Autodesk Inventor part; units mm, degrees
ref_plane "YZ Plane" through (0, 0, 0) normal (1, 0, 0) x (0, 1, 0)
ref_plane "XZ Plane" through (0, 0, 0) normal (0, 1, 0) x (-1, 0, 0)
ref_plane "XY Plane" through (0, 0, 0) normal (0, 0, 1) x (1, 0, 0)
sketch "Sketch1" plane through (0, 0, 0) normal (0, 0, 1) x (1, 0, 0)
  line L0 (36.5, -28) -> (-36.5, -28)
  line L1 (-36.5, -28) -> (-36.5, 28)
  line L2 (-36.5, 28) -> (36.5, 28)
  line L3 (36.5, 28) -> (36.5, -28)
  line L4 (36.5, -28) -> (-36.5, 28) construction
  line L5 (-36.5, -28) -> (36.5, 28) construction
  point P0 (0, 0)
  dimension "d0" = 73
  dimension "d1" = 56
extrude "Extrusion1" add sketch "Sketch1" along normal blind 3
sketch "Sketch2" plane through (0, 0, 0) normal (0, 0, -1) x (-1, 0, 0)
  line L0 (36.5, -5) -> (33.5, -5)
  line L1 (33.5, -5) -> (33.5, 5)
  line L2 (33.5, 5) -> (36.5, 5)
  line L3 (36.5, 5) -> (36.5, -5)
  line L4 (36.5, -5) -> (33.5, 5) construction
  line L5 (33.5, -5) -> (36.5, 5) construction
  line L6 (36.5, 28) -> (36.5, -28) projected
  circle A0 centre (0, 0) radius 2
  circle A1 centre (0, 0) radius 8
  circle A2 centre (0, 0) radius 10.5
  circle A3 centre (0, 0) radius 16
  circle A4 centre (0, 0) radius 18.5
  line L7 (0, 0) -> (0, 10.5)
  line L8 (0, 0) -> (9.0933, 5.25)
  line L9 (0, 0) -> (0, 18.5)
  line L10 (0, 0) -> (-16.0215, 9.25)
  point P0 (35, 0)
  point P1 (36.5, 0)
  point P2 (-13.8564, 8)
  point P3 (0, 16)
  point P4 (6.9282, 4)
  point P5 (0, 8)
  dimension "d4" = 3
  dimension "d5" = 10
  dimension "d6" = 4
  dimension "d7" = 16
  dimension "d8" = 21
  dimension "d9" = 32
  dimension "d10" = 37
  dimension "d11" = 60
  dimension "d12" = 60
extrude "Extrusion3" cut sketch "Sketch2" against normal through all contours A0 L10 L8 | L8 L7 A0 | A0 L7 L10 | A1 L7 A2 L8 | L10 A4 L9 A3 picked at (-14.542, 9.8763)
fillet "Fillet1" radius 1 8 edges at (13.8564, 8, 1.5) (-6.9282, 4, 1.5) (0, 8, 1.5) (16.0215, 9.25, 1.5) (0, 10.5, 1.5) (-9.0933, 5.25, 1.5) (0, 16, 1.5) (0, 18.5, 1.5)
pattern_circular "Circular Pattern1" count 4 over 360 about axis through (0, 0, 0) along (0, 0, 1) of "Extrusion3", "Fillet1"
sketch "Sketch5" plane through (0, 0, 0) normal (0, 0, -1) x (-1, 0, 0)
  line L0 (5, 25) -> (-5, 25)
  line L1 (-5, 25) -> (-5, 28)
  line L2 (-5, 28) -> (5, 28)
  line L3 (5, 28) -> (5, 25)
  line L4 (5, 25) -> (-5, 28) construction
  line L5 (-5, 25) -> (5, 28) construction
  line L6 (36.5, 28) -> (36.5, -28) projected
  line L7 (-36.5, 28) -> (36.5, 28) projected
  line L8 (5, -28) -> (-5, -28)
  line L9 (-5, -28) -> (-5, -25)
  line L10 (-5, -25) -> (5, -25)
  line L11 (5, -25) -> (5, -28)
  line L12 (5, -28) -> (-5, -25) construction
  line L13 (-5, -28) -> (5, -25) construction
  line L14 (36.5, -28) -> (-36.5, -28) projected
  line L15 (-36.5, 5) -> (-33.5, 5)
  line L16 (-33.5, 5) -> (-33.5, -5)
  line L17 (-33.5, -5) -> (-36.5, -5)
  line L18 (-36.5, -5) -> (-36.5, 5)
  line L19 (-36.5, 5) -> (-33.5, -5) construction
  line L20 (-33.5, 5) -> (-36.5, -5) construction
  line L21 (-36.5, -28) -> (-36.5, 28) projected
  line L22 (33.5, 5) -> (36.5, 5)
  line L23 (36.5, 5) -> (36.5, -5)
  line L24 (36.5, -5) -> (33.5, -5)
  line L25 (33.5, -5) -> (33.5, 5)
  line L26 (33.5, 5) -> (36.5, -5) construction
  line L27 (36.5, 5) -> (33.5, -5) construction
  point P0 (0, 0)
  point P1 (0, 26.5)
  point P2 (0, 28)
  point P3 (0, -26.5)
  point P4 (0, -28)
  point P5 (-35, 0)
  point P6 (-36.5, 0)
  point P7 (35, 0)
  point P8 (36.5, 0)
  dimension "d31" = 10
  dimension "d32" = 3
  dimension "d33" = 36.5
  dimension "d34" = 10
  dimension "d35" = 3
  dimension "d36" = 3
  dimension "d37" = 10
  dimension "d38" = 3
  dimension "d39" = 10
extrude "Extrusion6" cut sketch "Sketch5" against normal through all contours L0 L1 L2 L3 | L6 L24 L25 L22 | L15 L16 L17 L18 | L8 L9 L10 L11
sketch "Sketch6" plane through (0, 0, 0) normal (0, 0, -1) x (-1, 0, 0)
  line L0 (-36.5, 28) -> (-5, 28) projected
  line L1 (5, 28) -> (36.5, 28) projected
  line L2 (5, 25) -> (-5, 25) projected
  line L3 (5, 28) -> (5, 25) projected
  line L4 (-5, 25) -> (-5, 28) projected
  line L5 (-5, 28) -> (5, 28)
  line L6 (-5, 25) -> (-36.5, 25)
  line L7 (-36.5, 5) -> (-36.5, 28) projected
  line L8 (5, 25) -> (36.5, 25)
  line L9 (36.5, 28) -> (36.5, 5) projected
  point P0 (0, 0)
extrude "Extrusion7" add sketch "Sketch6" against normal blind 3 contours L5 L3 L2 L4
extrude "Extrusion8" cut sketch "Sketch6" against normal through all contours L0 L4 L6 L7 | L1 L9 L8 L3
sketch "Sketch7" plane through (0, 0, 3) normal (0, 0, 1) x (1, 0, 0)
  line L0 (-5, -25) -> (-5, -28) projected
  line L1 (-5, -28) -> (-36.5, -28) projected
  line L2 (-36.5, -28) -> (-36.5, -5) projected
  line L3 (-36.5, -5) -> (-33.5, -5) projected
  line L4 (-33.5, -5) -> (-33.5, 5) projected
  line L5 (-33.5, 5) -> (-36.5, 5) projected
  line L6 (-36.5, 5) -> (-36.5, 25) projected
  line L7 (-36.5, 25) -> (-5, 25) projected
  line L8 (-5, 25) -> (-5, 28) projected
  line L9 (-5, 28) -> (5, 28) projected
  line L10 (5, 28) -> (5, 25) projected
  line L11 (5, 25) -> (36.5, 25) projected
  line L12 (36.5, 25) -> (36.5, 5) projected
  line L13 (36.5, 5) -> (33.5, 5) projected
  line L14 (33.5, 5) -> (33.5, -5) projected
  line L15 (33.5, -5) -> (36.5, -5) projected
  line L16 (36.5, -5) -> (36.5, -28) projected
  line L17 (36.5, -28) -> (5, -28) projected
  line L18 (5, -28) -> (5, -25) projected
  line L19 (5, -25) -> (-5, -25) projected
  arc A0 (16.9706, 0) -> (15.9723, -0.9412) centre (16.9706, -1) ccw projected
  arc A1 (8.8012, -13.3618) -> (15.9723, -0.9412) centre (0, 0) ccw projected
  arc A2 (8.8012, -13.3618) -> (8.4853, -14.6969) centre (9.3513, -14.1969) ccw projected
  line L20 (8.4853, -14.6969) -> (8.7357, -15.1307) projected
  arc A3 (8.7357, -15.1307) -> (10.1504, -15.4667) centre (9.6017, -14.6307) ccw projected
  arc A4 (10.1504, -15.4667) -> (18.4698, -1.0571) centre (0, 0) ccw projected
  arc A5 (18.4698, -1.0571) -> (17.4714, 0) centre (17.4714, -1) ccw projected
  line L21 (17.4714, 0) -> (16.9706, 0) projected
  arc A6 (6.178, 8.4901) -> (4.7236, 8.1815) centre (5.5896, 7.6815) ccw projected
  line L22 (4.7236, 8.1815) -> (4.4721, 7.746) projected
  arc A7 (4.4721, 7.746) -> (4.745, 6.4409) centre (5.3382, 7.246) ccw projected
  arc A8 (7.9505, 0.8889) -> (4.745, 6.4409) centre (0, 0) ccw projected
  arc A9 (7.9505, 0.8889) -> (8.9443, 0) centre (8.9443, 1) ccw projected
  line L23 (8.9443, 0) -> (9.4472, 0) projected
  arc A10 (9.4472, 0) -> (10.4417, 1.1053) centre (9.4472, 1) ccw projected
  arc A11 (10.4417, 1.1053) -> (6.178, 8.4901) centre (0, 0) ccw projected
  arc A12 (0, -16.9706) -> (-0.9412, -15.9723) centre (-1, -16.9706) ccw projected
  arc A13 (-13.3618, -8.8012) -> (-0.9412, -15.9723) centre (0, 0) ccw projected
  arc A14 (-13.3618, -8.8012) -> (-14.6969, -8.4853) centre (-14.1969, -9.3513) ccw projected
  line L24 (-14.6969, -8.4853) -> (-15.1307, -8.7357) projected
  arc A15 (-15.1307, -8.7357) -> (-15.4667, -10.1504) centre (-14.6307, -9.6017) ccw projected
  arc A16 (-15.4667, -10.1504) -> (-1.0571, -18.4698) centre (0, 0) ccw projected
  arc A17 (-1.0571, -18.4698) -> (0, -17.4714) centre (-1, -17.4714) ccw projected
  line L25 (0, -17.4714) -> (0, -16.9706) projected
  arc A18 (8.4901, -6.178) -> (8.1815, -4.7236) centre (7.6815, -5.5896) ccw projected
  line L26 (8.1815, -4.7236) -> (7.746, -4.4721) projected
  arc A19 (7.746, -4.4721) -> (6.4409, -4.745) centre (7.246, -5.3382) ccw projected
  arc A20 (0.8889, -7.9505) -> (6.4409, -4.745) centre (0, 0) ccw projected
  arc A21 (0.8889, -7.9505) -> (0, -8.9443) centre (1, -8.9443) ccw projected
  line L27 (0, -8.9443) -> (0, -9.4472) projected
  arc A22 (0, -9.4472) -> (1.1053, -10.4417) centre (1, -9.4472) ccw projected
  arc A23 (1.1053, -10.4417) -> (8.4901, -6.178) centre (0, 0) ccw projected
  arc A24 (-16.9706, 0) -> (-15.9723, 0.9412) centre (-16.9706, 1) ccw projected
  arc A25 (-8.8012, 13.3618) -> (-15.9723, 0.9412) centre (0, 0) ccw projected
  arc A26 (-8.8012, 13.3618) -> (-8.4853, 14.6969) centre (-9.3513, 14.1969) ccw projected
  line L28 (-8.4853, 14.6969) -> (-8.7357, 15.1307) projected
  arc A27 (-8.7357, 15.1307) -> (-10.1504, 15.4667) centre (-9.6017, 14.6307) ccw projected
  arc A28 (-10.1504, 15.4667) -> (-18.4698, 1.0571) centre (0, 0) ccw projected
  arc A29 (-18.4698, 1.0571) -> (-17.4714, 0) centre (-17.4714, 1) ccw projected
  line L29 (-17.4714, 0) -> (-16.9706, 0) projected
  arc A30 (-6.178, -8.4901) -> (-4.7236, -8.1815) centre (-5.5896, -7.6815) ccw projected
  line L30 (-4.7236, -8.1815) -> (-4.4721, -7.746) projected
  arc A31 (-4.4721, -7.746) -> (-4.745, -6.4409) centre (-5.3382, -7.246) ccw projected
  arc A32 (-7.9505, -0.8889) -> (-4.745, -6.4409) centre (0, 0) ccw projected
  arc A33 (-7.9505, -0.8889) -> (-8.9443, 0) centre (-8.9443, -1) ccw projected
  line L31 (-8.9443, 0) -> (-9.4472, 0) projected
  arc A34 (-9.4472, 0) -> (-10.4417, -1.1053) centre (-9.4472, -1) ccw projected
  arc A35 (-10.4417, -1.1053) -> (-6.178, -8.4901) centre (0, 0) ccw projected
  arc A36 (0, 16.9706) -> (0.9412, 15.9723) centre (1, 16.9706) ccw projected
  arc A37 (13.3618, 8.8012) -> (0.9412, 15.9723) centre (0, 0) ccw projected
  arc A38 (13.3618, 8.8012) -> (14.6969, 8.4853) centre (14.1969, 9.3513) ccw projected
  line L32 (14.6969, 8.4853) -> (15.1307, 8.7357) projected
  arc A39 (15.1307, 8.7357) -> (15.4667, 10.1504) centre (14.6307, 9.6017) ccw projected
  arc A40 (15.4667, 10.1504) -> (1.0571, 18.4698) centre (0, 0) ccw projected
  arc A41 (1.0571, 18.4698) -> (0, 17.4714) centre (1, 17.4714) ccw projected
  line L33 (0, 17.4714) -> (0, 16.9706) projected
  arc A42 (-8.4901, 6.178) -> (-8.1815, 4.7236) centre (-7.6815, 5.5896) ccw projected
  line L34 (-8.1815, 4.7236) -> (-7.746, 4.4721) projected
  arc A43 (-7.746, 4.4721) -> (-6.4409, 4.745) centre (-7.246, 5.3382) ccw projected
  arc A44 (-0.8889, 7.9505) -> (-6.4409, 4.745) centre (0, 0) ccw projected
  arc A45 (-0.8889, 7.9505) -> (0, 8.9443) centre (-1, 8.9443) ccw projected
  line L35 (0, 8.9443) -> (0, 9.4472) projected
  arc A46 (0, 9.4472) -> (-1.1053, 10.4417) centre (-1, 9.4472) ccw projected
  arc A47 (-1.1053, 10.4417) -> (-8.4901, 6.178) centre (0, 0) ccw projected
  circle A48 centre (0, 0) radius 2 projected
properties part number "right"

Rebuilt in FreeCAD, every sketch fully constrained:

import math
import FreeCAD as App
import Part
import Sketcher

V = App.Vector
Q = App.Units.Quantity


def edges_at(feature, points):
    """Names of the edges that pass closest to the given points."""
    edges = feature.Shape.Edges
    near = lambda p: min(range(len(edges)), key=lambda i: edges[i].distToShape(Part.Vertex(*p))[0])
    return sorted({f"Edge{near(p) + 1}" for p in points})


def add_polygon(sketch, points):
    """Adds a closed chain of lines whose ends are joined by coincident constraints."""
    first, n = sketch.GeometryCount, len(points)
    for a, b in zip(points, points[1:] + points[:1]):
        sketch.addGeometry(Part.LineSegment(App.Vector(*a, 0), App.Vector(*b, 0)), False)
    for i in range(n):
        sketch.addConstraint(Sketcher.Constraint("Coincident", first + i, 2, first + (i + 1) % n, 1))

doc = App.newDocument("Part")
body = doc.addObject("PartDesign::Body", "Body")

# Sketch on XY plane
sketch1 = body.newObject("Sketcher::SketchObject", "Sketch")
sketch1.AttachmentSupport = (doc.getObject("XY_Plane"), [""])
sketch1.MapMode = "FlatFace"
add_polygon(sketch1, [(-36, -28), (36, -28), (36, 28), (-36, 28)])  # lines 0-3
sketch1.addConstraint([
    Sketcher.Constraint("Horizontal", 0),
    Sketcher.Constraint("Vertical", 1),
    Sketcher.Constraint("Horizontal", 2),
    Sketcher.Constraint("Vertical", 3),
    Sketcher.Constraint("Symmetric", 0, 2, 2, 2, -1, 1),
    Sketcher.Constraint("DistanceX", 0, 1, 0, 2, Q("73 mm")),
    Sketcher.Constraint("DistanceY", 1, 1, 1, 2, Q("56 mm")),
])
pad1 = body.newObject("PartDesign::Pad", "Pad")
pad1.Profile = sketch1
pad1.Length = 3

# Sketch on XY plane
sketch2 = body.newObject("Sketcher::SketchObject", "Sketch001")
sketch2.AttachmentSupport = (doc.getObject("XY_Plane"), [""])
sketch2.MapMode = "FlatFace"
sketch2.addGeometry([
    Part.Circle(V(0, 0, 0), V(0, 0, 1), 2),  # 0
    Part.ArcOfCircle(Part.Circle(V(0, 0, 0), V(0, 0, 1), 8), math.radians(90), math.radians(150)),  # 1
    Part.LineSegment(V(-6.9, 4, 0), V(-9.1, 5.2, 0)),  # 2
    Part.ArcOfCircle(Part.Circle(V(0, 0, 0), V(0, 0, 1), 10.5), math.radians(90), math.radians(150)),  # 3
    Part.LineSegment(V(0, 10.5, 0), V(0, 8, 0)),  # 4
    Part.LineSegment(V(16, 9.2, 0), V(13.9, 8, 0)),  # 5
    Part.ArcOfCircle(Part.Circle(V(0, 0, 0), V(0, 0, 1), 16), math.radians(30), math.radians(90)),  # 6
    Part.LineSegment(V(0, 16, 0), V(0, 18.5, 0)),  # 7
    Part.ArcOfCircle(Part.Circle(V(0, 0, 0), V(0, 0, 1), 18.5), math.radians(30), math.radians(90)),  # 8
], False)
sketch2.addConstraint([
    Sketcher.Constraint("Coincident", 1, 2, 2, 1),
    Sketcher.Constraint("Coincident", 2, 2, 3, 2),
    Sketcher.Constraint("Coincident", 3, 1, 4, 1),
    Sketcher.Constraint("Coincident", 4, 2, 1, 1),
    Sketcher.Constraint("Coincident", 5, 2, 6, 1),
    Sketcher.Constraint("Coincident", 6, 2, 7, 1),
    Sketcher.Constraint("Coincident", 7, 2, 8, 2),
    Sketcher.Constraint("Coincident", 8, 1, 5, 1),
    Sketcher.Constraint("Vertical", 4),
    Sketcher.Constraint("Vertical", 7),
    Sketcher.Constraint("Coincident", 0, 3, -1, 1),
    Sketcher.Constraint("Coincident", 1, 3, -1, 1),
    Sketcher.Constraint("Coincident", 3, 3, -1, 1),
    Sketcher.Constraint("Coincident", 6, 3, -1, 1),
    Sketcher.Constraint("Coincident", 8, 3, -1, 1),
    Sketcher.Constraint("PointOnObject", 3, 1, -2),
    Sketcher.Constraint("PointOnObject", 6, 2, -2),
    Sketcher.Constraint("Horizontal", 4, 2, 5, 2),
    Sketcher.Constraint("Equal", 4, 7),
    Sketcher.Constraint("Diameter", 0, Q("4 mm")),
    Sketcher.Constraint("Radius", 1, Q("8 mm")),
    Sketcher.Constraint("Radius", 6, Q("16 mm")),
    Sketcher.Constraint("Radius", 3, Q("10.5 mm")),
    Sketcher.Constraint("DistanceY", -1, 1, 1, 2, Q("4 mm")),
    Sketcher.Constraint("Angle", 2, Q("150 deg")),
    Sketcher.Constraint("Angle", 5, Q("-150 deg")),
])
pocket1 = body.newObject("PartDesign::Pocket", "Pocket")
pocket1.Profile = sketch2
pocket1.Type = "ThroughAll"
pocket1.Reversed = True
doc.recompute()

fillet = body.newObject("PartDesign::Fillet", "Fillet")
fillet.Base = (pocket1, edges_at(pocket1, [
    (13.856, 8, 1.5),
    (-6.928, 4, 1.5),
    (0, 8, 1.5),
    (16.021, 9.25, 1.5),
    (0, 10.5, 1.5),
    (-9.093, 5.25, 1.5),
    (0, 16, 1.5),
    (0, 18.5, 1.5),
]))
fillet.Radius = 1
doc.recompute()

polarpattern = body.newObject("PartDesign::PolarPattern", "PolarPattern")
polarpattern.Originals = [pocket1, fillet]
polarpattern.Axis = (doc.getObject("Z_Axis"), [""])
polarpattern.Angle = 360
polarpattern.Occurrences = 4
body.Tip = polarpattern

# Sketch on XY plane
sketch3 = body.newObject("Sketcher::SketchObject", "Sketch002")
sketch3.AttachmentSupport = (doc.getObject("XY_Plane"), [""])
sketch3.MapMode = "FlatFace"
add_polygon(sketch3, [(5, 25), (-5, 25), (-5, 28), (5, 28)])  # lines 0-3
add_polygon(sketch3, [(-36.5, -5), (-36.5, 5), (-33.5, 5), (-33.5, -5)])  # lines 4-7
add_polygon(sketch3, [(33.5, 5), (36.5, 5), (36.5, -5), (33.5, -5)])  # lines 8-11
add_polygon(sketch3, [(5, -28), (-5, -28), (-5, -25), (5, -25)])  # lines 12-15
sketch3.addConstraint([
    Sketcher.Constraint("Horizontal", 0),
    Sketcher.Constraint("Vertical", 1),
    Sketcher.Constraint("Horizontal", 2),
    Sketcher.Constraint("Vertical", 3),
    Sketcher.Constraint("Vertical", 4),
    Sketcher.Constraint("Horizontal", 5),
    Sketcher.Constraint("Vertical", 6),
    Sketcher.Constraint("Horizontal", 7),
    Sketcher.Constraint("Horizontal", 8),
    Sketcher.Constraint("Vertical", 9),
    Sketcher.Constraint("Horizontal", 10),
    Sketcher.Constraint("Vertical", 11),
    Sketcher.Constraint("Horizontal", 12),
    Sketcher.Constraint("Vertical", 13),
    Sketcher.Constraint("Horizontal", 14),
    Sketcher.Constraint("Vertical", 15),
    Sketcher.Constraint("Symmetric", 7, 2, 8, 2, -1, 1),
    Sketcher.Constraint("Symmetric", 5, 2, 10, 2, -1, 1),
    Sketcher.Constraint("Symmetric", 2, 2, 12, 2, -1, 1),
    Sketcher.Constraint("Symmetric", 0, 2, 14, 2, -1, 1),
    Sketcher.Constraint("Horizontal", 5, 2, 8, 2),
    Sketcher.Constraint("Vertical", 1, 2, 12, 2),
    Sketcher.Constraint("Equal", 10, 1),
    Sketcher.Constraint("Equal", 14, 4),
    Sketcher.Constraint("DistanceX", 0, 2, 0, 1, Q("10 mm")),
    Sketcher.Constraint("DistanceX", 5, 1, 5, 2, Q("3 mm")),
    Sketcher.Constraint("DistanceX", 4, 2, -1, 1, Q("36.5 mm")),
    Sketcher.Constraint("DistanceY", -1, 1, 0, 2, Q("25 mm")),
])
pocket2 = body.newObject("PartDesign::Pocket", "Pocket001")
pocket2.Profile = sketch3
pocket2.Type = "ThroughAll"
pocket2.Reversed = True

# Sketch on XY plane
sketch4 = body.newObject("Sketcher::SketchObject", "Sketch003")
sketch4.AttachmentSupport = (doc.getObject("XY_Plane"), [""])
sketch4.MapMode = "FlatFace"
add_polygon(sketch4, [(-5, 28), (5, 28), (5, 25), (-5, 25)])  # lines 0-3
sketch4.addConstraint([
    Sketcher.Constraint("Horizontal", 0),
    Sketcher.Constraint("Vertical", 1),
    Sketcher.Constraint("Horizontal", 2),
    Sketcher.Constraint("Vertical", 3),
    Sketcher.Constraint("DistanceX", 0, 1, 0, 2, Q("10 mm")),
    Sketcher.Constraint("DistanceY", 1, 2, 1, 1, Q("3 mm")),
    Sketcher.Constraint("DistanceX", -1, 1, 0, 2, Q("5 mm")),
    Sketcher.Constraint("DistanceY", -1, 1, 0, 2, Q("28 mm")),
])
pad2 = body.newObject("PartDesign::Pad", "Pad001")
pad2.Profile = sketch4
pad2.Length = 3

# Sketch on XY plane
sketch5 = body.newObject("Sketcher::SketchObject", "Sketch004")
sketch5.AttachmentSupport = (doc.getObject("XY_Plane"), [""])
sketch5.MapMode = "FlatFace"
add_polygon(sketch5, [(5, 28), (36.5, 28), (36.5, 25), (5, 25)])  # lines 0-3
add_polygon(sketch5, [(-36.5, 28), (-5, 28), (-5, 25), (-36.5, 25)])  # lines 4-7
sketch5.addConstraint([
    Sketcher.Constraint("Horizontal", 0),
    Sketcher.Constraint("Vertical", 1),
    Sketcher.Constraint("Horizontal", 2),
    Sketcher.Constraint("Vertical", 3),
    Sketcher.Constraint("Horizontal", 4),
    Sketcher.Constraint("Vertical", 5),
    Sketcher.Constraint("Horizontal", 6),
    Sketcher.Constraint("Vertical", 7),
    Sketcher.Constraint("Symmetric", 3, 2, 4, 2, -2),
    Sketcher.Constraint("Symmetric", 1, 2, 6, 2, -2),
    Sketcher.Constraint("DistanceY", 1, 2, 1, 1, Q("3 mm")),
    Sketcher.Constraint("DistanceX", 0, 1, 0, 2, Q("31.5 mm")),
    Sketcher.Constraint("DistanceY", -1, 1, 0, 2, Q("28 mm")),
    Sketcher.Constraint("DistanceX", -1, 1, 2, 2, Q("5 mm")),
])
pocket3 = body.newObject("PartDesign::Pocket", "Pocket002")
pocket3.Profile = sketch5
pocket3.Type = "ThroughAll"
pocket3.Reversed = True

doc.recompute()
